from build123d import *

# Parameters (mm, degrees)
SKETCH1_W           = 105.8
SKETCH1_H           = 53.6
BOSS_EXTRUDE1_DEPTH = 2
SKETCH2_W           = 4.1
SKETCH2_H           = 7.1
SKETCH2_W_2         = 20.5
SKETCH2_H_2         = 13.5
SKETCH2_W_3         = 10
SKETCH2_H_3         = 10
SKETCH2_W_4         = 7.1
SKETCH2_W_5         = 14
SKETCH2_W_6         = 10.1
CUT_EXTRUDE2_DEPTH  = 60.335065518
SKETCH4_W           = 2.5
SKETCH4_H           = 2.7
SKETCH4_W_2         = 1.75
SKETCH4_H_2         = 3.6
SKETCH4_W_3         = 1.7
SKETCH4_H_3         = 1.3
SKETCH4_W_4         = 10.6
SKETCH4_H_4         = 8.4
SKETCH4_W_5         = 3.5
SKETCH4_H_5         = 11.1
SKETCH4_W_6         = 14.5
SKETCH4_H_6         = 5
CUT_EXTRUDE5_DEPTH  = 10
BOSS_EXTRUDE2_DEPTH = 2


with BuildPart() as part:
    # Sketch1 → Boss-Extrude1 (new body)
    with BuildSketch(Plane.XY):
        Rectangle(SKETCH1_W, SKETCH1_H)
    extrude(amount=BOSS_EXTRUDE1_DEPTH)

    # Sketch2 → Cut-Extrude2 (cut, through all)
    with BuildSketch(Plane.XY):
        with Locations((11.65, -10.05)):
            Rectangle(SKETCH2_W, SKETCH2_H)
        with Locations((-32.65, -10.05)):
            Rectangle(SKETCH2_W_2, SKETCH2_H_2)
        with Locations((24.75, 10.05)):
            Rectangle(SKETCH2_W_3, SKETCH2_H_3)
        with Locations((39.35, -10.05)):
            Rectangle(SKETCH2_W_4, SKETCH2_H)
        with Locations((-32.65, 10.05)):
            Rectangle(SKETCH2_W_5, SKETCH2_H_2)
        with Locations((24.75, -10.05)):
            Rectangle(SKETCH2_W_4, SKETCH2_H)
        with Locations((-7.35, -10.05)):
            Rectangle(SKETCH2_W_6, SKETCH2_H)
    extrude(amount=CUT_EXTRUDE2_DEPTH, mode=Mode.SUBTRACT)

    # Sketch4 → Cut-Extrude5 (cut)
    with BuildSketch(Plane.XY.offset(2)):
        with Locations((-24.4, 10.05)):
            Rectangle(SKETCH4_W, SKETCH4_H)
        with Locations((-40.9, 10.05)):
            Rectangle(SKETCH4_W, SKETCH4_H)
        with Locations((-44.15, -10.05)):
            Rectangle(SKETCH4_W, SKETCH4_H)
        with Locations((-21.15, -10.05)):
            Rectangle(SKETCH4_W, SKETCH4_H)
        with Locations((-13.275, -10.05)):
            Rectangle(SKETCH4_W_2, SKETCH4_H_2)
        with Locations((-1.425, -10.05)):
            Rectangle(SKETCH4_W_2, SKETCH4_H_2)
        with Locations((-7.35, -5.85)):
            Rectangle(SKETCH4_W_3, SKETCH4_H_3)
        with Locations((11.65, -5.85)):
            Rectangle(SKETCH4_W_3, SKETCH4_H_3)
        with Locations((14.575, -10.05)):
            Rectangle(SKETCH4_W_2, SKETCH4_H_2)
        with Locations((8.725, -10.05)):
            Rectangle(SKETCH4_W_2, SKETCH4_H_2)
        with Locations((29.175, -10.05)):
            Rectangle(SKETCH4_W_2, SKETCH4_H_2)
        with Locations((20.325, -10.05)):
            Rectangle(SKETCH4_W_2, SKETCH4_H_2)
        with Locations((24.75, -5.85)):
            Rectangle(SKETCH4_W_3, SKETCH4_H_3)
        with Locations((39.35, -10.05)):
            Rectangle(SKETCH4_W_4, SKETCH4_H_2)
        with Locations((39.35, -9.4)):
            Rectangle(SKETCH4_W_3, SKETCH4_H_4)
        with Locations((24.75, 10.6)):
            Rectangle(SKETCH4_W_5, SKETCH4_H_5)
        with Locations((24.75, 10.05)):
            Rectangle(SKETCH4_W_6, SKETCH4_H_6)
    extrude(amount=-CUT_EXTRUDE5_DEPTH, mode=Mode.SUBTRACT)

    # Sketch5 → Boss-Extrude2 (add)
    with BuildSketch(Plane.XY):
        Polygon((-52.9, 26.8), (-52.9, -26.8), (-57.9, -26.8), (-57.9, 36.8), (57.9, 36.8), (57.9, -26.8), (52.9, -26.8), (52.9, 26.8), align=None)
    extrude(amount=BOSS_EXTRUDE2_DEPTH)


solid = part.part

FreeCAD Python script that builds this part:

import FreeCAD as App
import Part
import Sketcher
Q = App.Units.Quantity


def add_polygon(sketch, points):
    """Adds a closed chain of lines whose ends are joined by coincident constraints."""
    first, n = sketch.GeometryCount, len(points)
    for a, b in zip(points, points[1:] + points[:1]):
        sketch.addGeometry(Part.LineSegment(App.Vector(*a, 0), App.Vector(*b, 0)), False)
    for i in range(n):
        sketch.addConstraint(Sketcher.Constraint("Coincident", first + i, 2, first + (i + 1) % n, 1))

doc = App.newDocument("Part")
body = doc.addObject("PartDesign::Body", "Body")

sketch1 = body.newObject("Sketcher::SketchObject", "Sketch")
sketch1.AttachmentSupport = (doc.getObject("XY_Plane"), [""])
sketch1.MapMode = "FlatFace"
add_polygon(sketch1, [(-53, 27), (-53, -27), (53, -27), (53, 27)])
sketch1.addConstraint(Sketcher.Constraint("Vertical", 0))
sketch1.addConstraint(Sketcher.Constraint("Horizontal", 1))
sketch1.addConstraint(Sketcher.Constraint("Vertical", 2))
sketch1.addConstraint(Sketcher.Constraint("Horizontal", 3))
sketch1.addConstraint(Sketcher.Constraint("Symmetric", 0, 2, 2, 2, -1, 1))
sketch1.addConstraint(Sketcher.Constraint("DistanceX", 1, 1, 1, 2, Q("105.8 mm")))
sketch1.addConstraint(Sketcher.Constraint("DistanceY", 0, 2, 0, 1, Q("53.6 mm")))
pad1 = body.newObject("PartDesign::Pad", "Pad")
pad1.Profile = sketch1
pad1.Length = 2

sketch2 = body.newObject("Sketcher::SketchObject", "Sketch001")
sketch2.AttachmentSupport = (doc.getObject("XY_Plane"), [""])
sketch2.MapMode = "FlatFace"
add_polygon(sketch2, [(9.6, -6.5), (9.6, -13.6), (13.7, -13.6), (13.7, -6.5)])
add_polygon(sketch2, [(-42.9, -3.3), (-42.9, -16.8), (-22.4, -16.8), (-22.4, -3.3)])
add_polygon(sketch2, [(19.8, 15.1), (19.8, 5), (29.8, 5), (29.8, 15.1)])
add_polygon(sketch2, [(35.8, -6.5), (35.8, -13.6), (42.9, -13.6), (42.9, -6.5)])
add_polygon(sketch2, [(-39.6, 16.8), (-39.6, 3.3), (-25.6, 3.3), (-25.6, 16.8)])
add_polygon(sketch2, [(21.2, -6.5), (21.2, -13.6), (28.3, -13.6), (28.3, -6.5)])
add_polygon(sketch2, [(-12.4, -6.5), (-12.4, -13.6), (-2.3, -13.6), (-2.3, -6.5)])
sketch2.addConstraint(Sketcher.Constraint("Vertical", 0))
sketch2.addConstraint(Sketcher.Constraint("Horizontal", 1))
sketch2.addConstraint(Sketcher.Constraint("Vertical", 2))
sketch2.addConstraint(Sketcher.Constraint("Horizontal", 3))
sketch2.addConstraint(Sketcher.Constraint("Vertical", 4))
sketch2.addConstraint(Sketcher.Constraint("Horizontal", 5))
sketch2.addConstraint(Sketcher.Constraint("Vertical", 6))
sketch2.addConstraint(Sketcher.Constraint("Horizontal", 7))
sketch2.addConstraint(Sketcher.Constraint("Vertical", 8))
sketch2.addConstraint(Sketcher.Constraint("Horizontal", 9))
sketch2.addConstraint(Sketcher.Constraint("Vertical", 10))
sketch2.addConstraint(Sketcher.Constraint("Horizontal", 11))
sketch2.addConstraint(Sketcher.Constraint("Vertical", 12))
sketch2.addConstraint(Sketcher.Constraint("Horizontal", 13))
sketch2.addConstraint(Sketcher.Constraint("Vertical", 14))
sketch2.addConstraint(Sketcher.Constraint("Horizontal", 15))
sketch2.addConstraint(Sketcher.Constraint("Vertical", 16))
sketch2.addConstraint(Sketcher.Constraint("Horizontal", 17))
sketch2.addConstraint(Sketcher.Constraint("Vertical", 18))
sketch2.addConstraint(Sketcher.Constraint("Horizontal", 19))
sketch2.addConstraint(Sketcher.Constraint("Vertical", 20))
sketch2.addConstraint(Sketcher.Constraint("Horizontal", 21))
sketch2.addConstraint(Sketcher.Constraint("Vertical", 22))
sketch2.addConstraint(Sketcher.Constraint("Horizontal", 23))
sketch2.addConstraint(Sketcher.Constraint("Vertical", 24))
sketch2.addConstraint(Sketcher.Constraint("Horizontal", 25))
sketch2.addConstraint(Sketcher.Constraint("Vertical", 26))
sketch2.addConstraint(Sketcher.Constraint("Horizontal", 27))
sketch2.addConstraint(Sketcher.Constraint("Horizontal", 1, 2, 12, 2))
sketch2.addConstraint(Sketcher.Constraint("Horizontal", 3, 2, 14, 2))
sketch2.addConstraint(Sketcher.Constraint("Horizontal", 13, 2, 20, 2))
sketch2.addConstraint(Sketcher.Constraint("Horizontal", 15, 2, 22, 2))
sketch2.addConstraint(Sketcher.Constraint("Horizontal", 21, 2, 24, 2))
sketch2.addConstraint(Sketcher.Constraint("Horizontal", 23, 2, 26, 2))
sketch2.addConstraint(Sketcher.Constraint("Equal", 15, 21))
sketch2.addConstraint(Sketcher.Constraint("Equal", 23, 0))
sketch2.addConstraint(Sketcher.Constraint("Equal", 11, 8))
sketch2.addConstraint(Sketcher.Constraint("Equal", 6, 16))
sketch2.addConstraint(Sketcher.Constraint("DistanceX", 9, 1, 9, 2, Q("10 mm")))
sketch2.addConstraint(Sketcher.Constraint("DistanceX", 17, 1, 17, 2, Q("14 mm")))
sketch2.addConstraint(Sketcher.Constraint("DistanceX", 1, 1, 1, 2, Q("4.1 mm")))
sketch2.addConstraint(Sketcher.Constraint("DistanceX", 5, 1, 5, 2, Q("20.5 mm")))
sketch2.addConstraint(Sketcher.Constraint("DistanceX", 13, 1, 13, 2, Q("7.1 mm")))
sketch2.addConstraint(Sketcher.Constraint("DistanceX", 25, 1, 25, 2, Q("10.1 mm")))
sketch2.addConstraint(Sketcher.Constraint("DistanceY", 4, 2, 4, 1, Q("13.5 mm")))
sketch2.addConstraint(Sketcher.Constraint("DistanceX", 5, 2, 0, 2, Q("32 mm")))
sketch2.addConstraint(Sketcher.Constraint("DistanceX", 5, 2, 24, 2, Q("10 mm")))
sketch2.addConstraint(Sketcher.Constraint("DistanceX", -1, 1, 0, 2, Q("9.6 mm")))
sketch2.addConstraint(Sketcher.Constraint("DistanceY", 0, 2, -1, 1, Q("13.6 mm")))
sketch2.addConstraint(Sketcher.Constraint("DistanceY", 4, 2, -1, 1, Q("16.8 mm")))
sketch2.addConstraint(Sketcher.Constraint("DistanceX", -1, 1, 12, 2, Q("35.8 mm")))
sketch2.addConstraint(Sketcher.Constraint("DistanceY", -1, 1, 16, 2, Q("3.3 mm")))
sketch2.addConstraint(Sketcher.Constraint("DistanceX", -1, 1, 20, 2, Q("21.2 mm")))
sketch2.addConstraint(Sketcher.Constraint("DistanceX", -1, 1, 8, 2, Q("19.75 mm")))
sketch2.addConstraint(Sketcher.Constraint("DistanceY", -1, 1, 8, 2, Q("5.05 mm")))
sketch2.addConstraint(Sketcher.Constraint("DistanceX", 16, 2, -1, 1, Q("39.65 mm")))
pocket1 = body.newObject("PartDesign::Pocket", "Pocket")
pocket1.Profile = sketch2
pocket1.Type = "ThroughAll"
pocket1.Reversed = True

sketch3 = body.newObject("Sketcher::SketchObject", "Sketch002")
sketch3.AttachmentSupport = (doc.getObject("XY_Plane"), [""])
sketch3.MapMode = "FlatFace"
sketch3.AttachmentOffset = App.Placement(App.Vector(0, 0, 2), App.Rotation())
add_polygon(sketch3, [(-25.6, 11.4), (-25.6, 8.7), (-23.1, 8.7), (-23.1, 11.4)])
add_polygon(sketch3, [(-42.1, 11.4), (-42.1, 8.7), (-39.6, 8.7), (-39.6, 11.4)])
add_polygon(sketch3, [(-45.4, -8.7), (-45.4, -11.4), (-42.9, -11.4), (-42.9, -8.7)])
add_polygon(sketch3, [(-22.4, -8.7), (-22.4, -11.4), (-19.9, -11.4), (-19.9, -8.7)])
add_polygon(sketch3, [(-14.2, -8.2), (-14.2, -11.8), (-12.4, -11.8), (-12.4, -8.2)])
add_polygon(sketch3, [(-2.3, -8.2), (-2.3, -11.8), (-0.6, -11.8), (-0.6, -8.2)])
add_polygon(sketch3, [(-8.2, -5.2), (-8.2, -6.5), (-6.5, -6.5), (-6.5, -5.2)])
add_polygon(sketch3, [(10.8, -5.2), (10.8, -6.5), (12.5, -6.5), (12.5, -5.2)])
add_polygon(sketch3, [(13.7, -8.2), (13.7, -11.8), (15.4, -11.8), (15.4, -8.2)])
add_polygon(sketch3, [(7.8, -8.2), (7.8, -11.8), (9.6, -11.8), (9.6, -8.2)])
add_polygon(sketch3, [(28.3, -8.2), (28.3, -11.8), (30.1, -11.8), (30.1, -8.2)])
add_polygon(sketch3, [(19.4, -8.2), (19.4, -11.8), (21.2, -11.8), (21.2, -8.2)])
add_polygon(sketch3, [(23.9, -5.2), (23.9, -6.5), (25.6, -6.5), (25.6, -5.2)])
add_polygon(sketch3, [(34, -8.2), (34, -11.8), (38.5, -11.8), (38.5, -13.6), (40.2, -13.6), (40.2, -11.8), (44.6, -11.8), (44.6, -8.2), (40.2, -8.2), (40.2, -5.2), (38.5, -5.2), (38.5, -8.2)])
add_polygon(sketch3, [(23, 7.5), (23, 5), (26.5, 5), (26.5, 7.5), (32, 7.5), (32, 12.6), (26.5, 12.6), (26.5, 16.1), (23, 16.1), (23, 12.6), (17.5, 12.6), (17.5, 7.5)])
sketch3.addConstraint(Sketcher.Constraint("Vertical", 0))
sketch3.addConstraint(Sketcher.Constraint("Horizontal", 1))
sketch3.addConstraint(Sketcher.Constraint("Vertical", 2))
sketch3.addConstraint(Sketcher.Constraint("Horizontal", 3))
sketch3.addConstraint(Sketcher.Constraint("Vertical", 4))
sketch3.addConstraint(Sketcher.Constraint("Horizontal", 5))
sketch3.addConstraint(Sketcher.Constraint("Vertical", 6))
sketch3.addConstraint(Sketcher.Constraint("Horizontal", 7))
sketch3.addConstraint(Sketcher.Constraint("Vertical", 8))
sketch3.addConstraint(Sketcher.Constraint("Horizontal", 9))
sketch3.addConstraint(Sketcher.Constraint("Vertical", 10))
sketch3.addConstraint(Sketcher.Constraint("Horizontal", 11))
sketch3.addConstraint(Sketcher.Constraint("Vertical", 12))
sketch3.addConstraint(Sketcher.Constraint("Horizontal", 13))
sketch3.addConstraint(Sketcher.Constraint("Vertical", 14))
sketch3.addConstraint(Sketcher.Constraint("Horizontal", 15))
sketch3.addConstraint(Sketcher.Constraint("Vertical", 16))
sketch3.addConstraint(Sketcher.Constraint("Horizontal", 17))
sketch3.addConstraint(Sketcher.Constraint("Vertical", 18))
sketch3.addConstraint(Sketcher.Constraint("Horizontal", 19))
sketch3.addConstraint(Sketcher.Constraint("Vertical", 20))
sketch3.addConstraint(Sketcher.Constraint("Horizontal", 21))
sketch3.addConstraint(Sketcher.Constraint("Vertical", 22))
sketch3.addConstraint(Sketcher.Constraint("Horizontal", 23))
sketch3.addConstraint(Sketcher.Constraint("Vertical", 24))
sketch3.addConstraint(Sketcher.Constraint("Horizontal", 25))
sketch3.addConstraint(Sketcher.Constraint("Vertical", 26))
sketch3.addConstraint(Sketcher.Constraint("Horizontal", 27))
sketch3.addConstraint(Sketcher.Constraint("Vertical", 28))
sketch3.addConstraint(Sketcher.Constraint("Horizontal", 29))
sketch3.addConstraint(Sketcher.Constraint("Vertical", 30))
sketch3.addConstraint(Sketcher.Constraint("Horizontal", 31))
sketch3.addConstraint(Sketcher.Constraint("Vertical", 32))
sketch3.addConstraint(Sketcher.Constraint("Horizontal", 33))
sketch3.addConstraint(Sketcher.Constraint("Vertical", 34))
sketch3.addConstraint(Sketcher.Constraint("Horizontal", 35))
sketch3.addConstraint(Sketcher.Constraint("Vertical", 36))
sketch3.addConstraint(Sketcher.Constraint("Horizontal", 37))
sketch3.addConstraint(Sketcher.Constraint("Vertical", 38))
sketch3.addConstraint(Sketcher.Constraint("Horizontal", 39))
sketch3.addConstraint(Sketcher.Constraint("Vertical", 40))
sketch3.addConstraint(Sketcher.Constraint("Horizontal", 41))
sketch3.addConstraint(Sketcher.Constraint("Vertical", 42))
sketch3.addConstraint(Sketcher.Constraint("Horizontal", 43))
sketch3.addConstraint(Sketcher.Constraint("Vertical", 44))
sketch3.addConstraint(Sketcher.Constraint("Horizontal", 45))
sketch3.addConstraint(Sketcher.Constraint("Vertical", 46))
sketch3.addConstraint(Sketcher.Constraint("Horizontal", 47))
sketch3.addConstraint(Sketcher.Constraint("Vertical", 48))
sketch3.addConstraint(Sketcher.Constraint("Horizontal", 49))
sketch3.addConstraint(Sketcher.Constraint("Vertical", 50))
sketch3.addConstraint(Sketcher.Constraint("Horizontal", 51))
sketch3.addConstraint(Sketcher.Constraint("Vertical", 52))
sketch3.addConstraint(Sketcher.Constraint("Horizontal", 53))
sketch3.addConstraint(Sketcher.Constraint("Vertical", 54))
sketch3.addConstraint(Sketcher.Constraint("Horizontal", 55))
sketch3.addConstraint(Sketcher.Constraint("Vertical", 56))
sketch3.addConstraint(Sketcher.Constraint("Horizontal", 57))
sketch3.addConstraint(Sketcher.Constraint("Vertical", 58))
sketch3.addConstraint(Sketcher.Constraint("Horizontal", 59))
sketch3.addConstraint(Sketcher.Constraint("Vertical", 60))
sketch3.addConstraint(Sketcher.Constraint("Horizontal", 61))
sketch3.addConstraint(Sketcher.Constraint("Vertical", 62))
sketch3.addConstraint(Sketcher.Constraint("Horizontal", 63))
sketch3.addConstraint(Sketcher.Constraint("Vertical", 64))
sketch3.addConstraint(Sketcher.Constraint("Horizontal", 65))
sketch3.addConstraint(Sketcher.Constraint("Vertical", 66))
sketch3.addConstraint(Sketcher.Constraint("Horizontal", 67))
sketch3.addConstraint(Sketcher.Constraint("Vertical", 68))
sketch3.addConstraint(Sketcher.Constraint("Horizontal", 69))
sketch3.addConstraint(Sketcher.Constraint("Vertical", 70))
sketch3.addConstraint(Sketcher.Constraint("Horizontal", 71))
sketch3.addConstraint(Sketcher.Constraint("Vertical", 72))
sketch3.addConstraint(Sketcher.Constraint("Horizontal", 73))
sketch3.addConstraint(Sketcher.Constraint("Vertical", 74))
sketch3.addConstraint(Sketcher.Constraint("Horizontal", 75))
sketch3.addConstraint(Sketcher.Constraint("Horizontal", 1, 2, 4, 2))
sketch3.addConstraint(Sketcher.Constraint("Horizontal", 3, 2, 6, 2))
sketch3.addConstraint(Sketcher.Constraint("Horizontal", 9, 2, 12, 2))
sketch3.addConstraint(Sketcher.Constraint("Horizontal", 11, 2, 14, 2))
sketch3.addConstraint(Sketcher.Constraint("Horizontal", 17, 2, 20, 2))
sketch3.addConstraint(Sketcher.Constraint("Horizontal", 19, 2, 22, 2))
sketch3.addConstraint(Sketcher.Constraint("Horizontal", 25, 2, 28, 2))
sketch3.addConstraint(Sketcher.Constraint("Horizontal", 27, 2, 30, 2))
sketch3.addConstraint(Sketcher.Constraint("Horizontal", 21, 2, 32, 2))
sketch3.addConstraint(Sketcher.Constraint("Horizontal", 23, 2, 34, 2))
sketch3.addConstraint(Sketcher.Constraint("Horizontal", 33, 2, 36, 2))
sketch3.addConstraint(Sketcher.Constraint("Horizontal", 35, 2, 38, 2))
sketch3.addConstraint(Sketcher.Constraint("Horizontal", 37, 2, 40, 2))
sketch3.addConstraint(Sketcher.Constraint("Horizontal", 39, 2, 42, 2))
sketch3.addConstraint(Sketcher.Constraint("Horizontal", 41, 2, 44, 2))
sketch3.addConstraint(Sketcher.Constraint("Horizontal", 43, 2, 46, 2))
sketch3.addConstraint(Sketcher.Constraint("Horizontal", 29, 2, 48, 2))
sketch3.addConstraint(Sketcher.Constraint("Horizontal", 31, 2, 50, 2))
sketch3.addConstraint(Sketcher.Constraint("Horizontal", 45, 2, 52, 2))
sketch3.addConstraint(Sketcher.Constraint("Horizontal", 53, 2, 56, 2))
sketch3.addConstraint(Sketcher.Constraint("Horizontal", 47, 2, 58, 2))
sketch3.addConstraint(Sketcher.Constraint("Horizontal", 51, 2, 60, 2))
sketch3.addConstraint(Sketcher.Constraint("Horizontal", 59, 2, 62, 2))
sketch3.addConstraint(Sketcher.Constraint("Horizontal", 69, 2, 72, 2))
sketch3.addConstraint(Sketcher.Constraint("Horizontal", 67, 2, 74, 2))
sketch3.addConstraint(Sketcher.Constraint("Vertical", 56, 2, 59, 2))
sketch3.addConstraint(Sketcher.Constraint("Vertical", 54, 2, 61, 2))
sketch3.addConstraint(Sketcher.Constraint("Vertical", 66, 2, 69, 2))
sketch3.addConstraint(Sketcher.Constraint("Vertical", 64, 2, 71, 2))
sketch3.addConstraint(Sketcher.Constraint("Equal", 3, 5))
sketch3.addConstraint(Sketcher.Constraint("Equal", 7, 9))
sketch3.addConstraint(Sketcher.Constraint("Equal", 11, 13))
sketch3.addConstraint(Sketcher.Constraint("Equal", 19, 21))
sketch3.addConstraint(Sketcher.Constraint("Equal", 27, 29))
sketch3.addConstraint(Sketcher.Constraint("Equal", 23, 33))
sketch3.addConstraint(Sketcher.Constraint("Equal", 35, 37))
sketch3.addConstraint(Sketcher.Constraint("Equal", 39, 41))
sketch3.addConstraint(Sketcher.Constraint("Equal", 43, 45))
sketch3.addConstraint(Sketcher.Constraint("Equal", 31, 49))
sketch3.addConstraint(Sketcher.Constraint("Equal", 51, 55))
sketch3.addConstraint(Sketcher.Constraint("Equal", 53, 57))
sketch3.addConstraint(Sketcher.Constraint("Equal", 69, 73))
sketch3.addConstraint(Sketcher.Constraint("Equal", 6, 8))
sketch3.addConstraint(Sketcher.Constraint("Equal", 47, 54))
sketch3.addConstraint(Sketcher.Constraint("Equal", 15, 64))
sketch3.addConstraint(Sketcher.Constraint("Equal", 58, 70))
sketch3.addConstraint(Sketcher.Constraint("DistanceY", 68, 1, 68, 2, Q("5 mm")))
sketch3.addConstraint(Sketcher.Constraint("DistanceX", 1, 1, 1, 2, Q("2.5 mm")))
sketch3.addConstraint(Sketcher.Constraint("DistanceX", 25, 1, 25, 2, Q("1.7 mm")))
sketch3.addConstraint(Sketcher.Constraint("DistanceX", 65, 1, 65, 2, Q("3.5 mm")))
sketch3.addConstraint(Sketcher.Constraint("DistanceX", 67, 1, 67, 2, Q("5.5 mm")))
sketch3.addConstraint(Sketcher.Constraint("DistanceY", 0, 2, 0, 1, Q("2.7 mm")))
sketch3.addConstraint(Sketcher.Constraint("DistanceY", 16, 2, 16, 1, Q("3.6 mm")))
sketch3.addConstraint(Sketcher.Constraint("DistanceY", 24, 2, 24, 1, Q("1.3 mm")))
sketch3.addConstraint(Sketcher.Constraint("DistanceX", -1, 1, 64, 2, Q("23 mm")))
sketch3.addConstraint(Sketcher.Constraint("DistanceX", 17, 1, 17, 2, Q("1.75 mm")))
sketch3.addConstraint(Sketcher.Constraint("DistanceX", 53, 1, 53, 2, Q("4.45 mm")))
sketch3.addConstraint(Sketcher.Constraint("DistanceY", 60, 1, 60, 2, Q("3.05 mm")))
sketch3.addConstraint(Sketcher.Constraint("DistanceY", -1, 1, 0, 2, Q("8.7 mm")))
sketch3.addConstraint(Sketcher.Constraint("DistanceX", 8, 2, -1, 1, Q("45.4 mm")))
sketch3.addConstraint(Sketcher.Constraint("DistanceY", 8, 2, -1, 1, Q("11.4 mm")))
sketch3.addConstraint(Sketcher.Constraint("DistanceX", 12, 2, -1, 1, Q("22.4 mm")))
sketch3.addConstraint(Sketcher.Constraint("DistanceX", 17, 2, -1, 1, Q("12.4 mm")))
sketch3.addConstraint(Sketcher.Constraint("DistanceX", 20, 2, -1, 1, Q("2.3 mm")))
sketch3.addConstraint(Sketcher.Constraint("DistanceX", 24, 2, -1, 1, Q("8.2 mm")))
sketch3.addConstraint(Sketcher.Constraint("DistanceY", 24, 2, -1, 1, Q("6.5 mm")))
sketch3.addConstraint(Sketcher.Constraint("DistanceX", -1, 1, 28, 2, Q("10.8 mm")))
sketch3.addConstraint(Sketcher.Constraint("DistanceX", -1, 1, 32, 2, Q("13.7 mm")))
sketch3.addConstraint(Sketcher.Constraint("DistanceX", -1, 1, 37, 2, Q("9.6 mm")))
sketch3.addConstraint(Sketcher.Constraint("DistanceX", -1, 1, 40, 2, Q("28.3 mm")))
sketch3.addConstraint(Sketcher.Constraint("DistanceX", -1, 1, 45, 2, Q("21.2 mm")))
sketch3.addConstraint(Sketcher.Constraint("DistanceX", -1, 1, 48, 2, Q("23.9 mm")))
sketch3.addConstraint(Sketcher.Constraint("DistanceX", -1, 1, 53, 2, Q("38.5 mm")))
sketch3.addConstraint(Sketcher.Constraint("DistanceX", 0, 2, -1, 1, Q("25.65 mm")))
sketch3.addConstraint(Sketcher.Constraint("DistanceX", 4, 2, -1, 1, Q("42.15 mm")))
sketch3.addConstraint(Sketcher.Constraint("DistanceY", -1, 1, 64, 2, Q("5.05 mm")))
pocket2 = body.newObject("PartDesign::Pocket", "Pocket001")
pocket2.Profile = sketch3
pocket2.Length = 10

sketch4 = body.newObject("Sketcher::SketchObject", "Sketch003")
sketch4.AttachmentSupport = (doc.getObject("XY_Plane"), [""])
sketch4.MapMode = "FlatFace"
add_polygon(sketch4, [(-53, -27), (-53, 27), (53, 27), (53, -27), (58, -27), (58, 37), (-58, 37), (-58, -27)])
sketch4.addConstraint(Sketcher.Constraint("Vertical", 0))
sketch4.addConstraint(Sketcher.Constraint("Horizontal", 1))
sketch4.addConstraint(Sketcher.Constraint("Vertical", 2))
sketch4.addConstraint(Sketcher.Constraint("Horizontal", 3))
sketch4.addConstraint(Sketcher.Constraint("Vertical", 4))
sketch4.addConstraint(Sketcher.Constraint("Horizontal", 5))
sketch4.addConstraint(Sketcher.Constraint("Vertical", 6))
sketch4.addConstraint(Sketcher.Constraint("Horizontal", 7))
sketch4.addConstraint(Sketcher.Constraint("Symmetric", 0, 2, 2, 2, -1, 1))
sketch4.addConstraint(Sketcher.Constraint("Symmetric", 3, 2, 6, 2, -2))
sketch4.addConstraint(Sketcher.Constraint("DistanceX", 3, 1, 3, 2, Q("5 mm")))
sketch4.addConstraint(Sketcher.Constraint("DistanceX", 1, 1, 1, 2, Q("105.8 mm")))
sketch4.addConstraint(Sketcher.Constraint("DistanceY", 0, 1, 0, 2, Q("53.6 mm")))
sketch4.addConstraint(Sketcher.Constraint("DistanceY", 4, 1, 4, 2, Q("63.6 mm")))
pad2 = body.newObject("PartDesign::Pad", "Pad001")
pad2.Profile = sketch4
pad2.Length = 2

doc.recompute()
